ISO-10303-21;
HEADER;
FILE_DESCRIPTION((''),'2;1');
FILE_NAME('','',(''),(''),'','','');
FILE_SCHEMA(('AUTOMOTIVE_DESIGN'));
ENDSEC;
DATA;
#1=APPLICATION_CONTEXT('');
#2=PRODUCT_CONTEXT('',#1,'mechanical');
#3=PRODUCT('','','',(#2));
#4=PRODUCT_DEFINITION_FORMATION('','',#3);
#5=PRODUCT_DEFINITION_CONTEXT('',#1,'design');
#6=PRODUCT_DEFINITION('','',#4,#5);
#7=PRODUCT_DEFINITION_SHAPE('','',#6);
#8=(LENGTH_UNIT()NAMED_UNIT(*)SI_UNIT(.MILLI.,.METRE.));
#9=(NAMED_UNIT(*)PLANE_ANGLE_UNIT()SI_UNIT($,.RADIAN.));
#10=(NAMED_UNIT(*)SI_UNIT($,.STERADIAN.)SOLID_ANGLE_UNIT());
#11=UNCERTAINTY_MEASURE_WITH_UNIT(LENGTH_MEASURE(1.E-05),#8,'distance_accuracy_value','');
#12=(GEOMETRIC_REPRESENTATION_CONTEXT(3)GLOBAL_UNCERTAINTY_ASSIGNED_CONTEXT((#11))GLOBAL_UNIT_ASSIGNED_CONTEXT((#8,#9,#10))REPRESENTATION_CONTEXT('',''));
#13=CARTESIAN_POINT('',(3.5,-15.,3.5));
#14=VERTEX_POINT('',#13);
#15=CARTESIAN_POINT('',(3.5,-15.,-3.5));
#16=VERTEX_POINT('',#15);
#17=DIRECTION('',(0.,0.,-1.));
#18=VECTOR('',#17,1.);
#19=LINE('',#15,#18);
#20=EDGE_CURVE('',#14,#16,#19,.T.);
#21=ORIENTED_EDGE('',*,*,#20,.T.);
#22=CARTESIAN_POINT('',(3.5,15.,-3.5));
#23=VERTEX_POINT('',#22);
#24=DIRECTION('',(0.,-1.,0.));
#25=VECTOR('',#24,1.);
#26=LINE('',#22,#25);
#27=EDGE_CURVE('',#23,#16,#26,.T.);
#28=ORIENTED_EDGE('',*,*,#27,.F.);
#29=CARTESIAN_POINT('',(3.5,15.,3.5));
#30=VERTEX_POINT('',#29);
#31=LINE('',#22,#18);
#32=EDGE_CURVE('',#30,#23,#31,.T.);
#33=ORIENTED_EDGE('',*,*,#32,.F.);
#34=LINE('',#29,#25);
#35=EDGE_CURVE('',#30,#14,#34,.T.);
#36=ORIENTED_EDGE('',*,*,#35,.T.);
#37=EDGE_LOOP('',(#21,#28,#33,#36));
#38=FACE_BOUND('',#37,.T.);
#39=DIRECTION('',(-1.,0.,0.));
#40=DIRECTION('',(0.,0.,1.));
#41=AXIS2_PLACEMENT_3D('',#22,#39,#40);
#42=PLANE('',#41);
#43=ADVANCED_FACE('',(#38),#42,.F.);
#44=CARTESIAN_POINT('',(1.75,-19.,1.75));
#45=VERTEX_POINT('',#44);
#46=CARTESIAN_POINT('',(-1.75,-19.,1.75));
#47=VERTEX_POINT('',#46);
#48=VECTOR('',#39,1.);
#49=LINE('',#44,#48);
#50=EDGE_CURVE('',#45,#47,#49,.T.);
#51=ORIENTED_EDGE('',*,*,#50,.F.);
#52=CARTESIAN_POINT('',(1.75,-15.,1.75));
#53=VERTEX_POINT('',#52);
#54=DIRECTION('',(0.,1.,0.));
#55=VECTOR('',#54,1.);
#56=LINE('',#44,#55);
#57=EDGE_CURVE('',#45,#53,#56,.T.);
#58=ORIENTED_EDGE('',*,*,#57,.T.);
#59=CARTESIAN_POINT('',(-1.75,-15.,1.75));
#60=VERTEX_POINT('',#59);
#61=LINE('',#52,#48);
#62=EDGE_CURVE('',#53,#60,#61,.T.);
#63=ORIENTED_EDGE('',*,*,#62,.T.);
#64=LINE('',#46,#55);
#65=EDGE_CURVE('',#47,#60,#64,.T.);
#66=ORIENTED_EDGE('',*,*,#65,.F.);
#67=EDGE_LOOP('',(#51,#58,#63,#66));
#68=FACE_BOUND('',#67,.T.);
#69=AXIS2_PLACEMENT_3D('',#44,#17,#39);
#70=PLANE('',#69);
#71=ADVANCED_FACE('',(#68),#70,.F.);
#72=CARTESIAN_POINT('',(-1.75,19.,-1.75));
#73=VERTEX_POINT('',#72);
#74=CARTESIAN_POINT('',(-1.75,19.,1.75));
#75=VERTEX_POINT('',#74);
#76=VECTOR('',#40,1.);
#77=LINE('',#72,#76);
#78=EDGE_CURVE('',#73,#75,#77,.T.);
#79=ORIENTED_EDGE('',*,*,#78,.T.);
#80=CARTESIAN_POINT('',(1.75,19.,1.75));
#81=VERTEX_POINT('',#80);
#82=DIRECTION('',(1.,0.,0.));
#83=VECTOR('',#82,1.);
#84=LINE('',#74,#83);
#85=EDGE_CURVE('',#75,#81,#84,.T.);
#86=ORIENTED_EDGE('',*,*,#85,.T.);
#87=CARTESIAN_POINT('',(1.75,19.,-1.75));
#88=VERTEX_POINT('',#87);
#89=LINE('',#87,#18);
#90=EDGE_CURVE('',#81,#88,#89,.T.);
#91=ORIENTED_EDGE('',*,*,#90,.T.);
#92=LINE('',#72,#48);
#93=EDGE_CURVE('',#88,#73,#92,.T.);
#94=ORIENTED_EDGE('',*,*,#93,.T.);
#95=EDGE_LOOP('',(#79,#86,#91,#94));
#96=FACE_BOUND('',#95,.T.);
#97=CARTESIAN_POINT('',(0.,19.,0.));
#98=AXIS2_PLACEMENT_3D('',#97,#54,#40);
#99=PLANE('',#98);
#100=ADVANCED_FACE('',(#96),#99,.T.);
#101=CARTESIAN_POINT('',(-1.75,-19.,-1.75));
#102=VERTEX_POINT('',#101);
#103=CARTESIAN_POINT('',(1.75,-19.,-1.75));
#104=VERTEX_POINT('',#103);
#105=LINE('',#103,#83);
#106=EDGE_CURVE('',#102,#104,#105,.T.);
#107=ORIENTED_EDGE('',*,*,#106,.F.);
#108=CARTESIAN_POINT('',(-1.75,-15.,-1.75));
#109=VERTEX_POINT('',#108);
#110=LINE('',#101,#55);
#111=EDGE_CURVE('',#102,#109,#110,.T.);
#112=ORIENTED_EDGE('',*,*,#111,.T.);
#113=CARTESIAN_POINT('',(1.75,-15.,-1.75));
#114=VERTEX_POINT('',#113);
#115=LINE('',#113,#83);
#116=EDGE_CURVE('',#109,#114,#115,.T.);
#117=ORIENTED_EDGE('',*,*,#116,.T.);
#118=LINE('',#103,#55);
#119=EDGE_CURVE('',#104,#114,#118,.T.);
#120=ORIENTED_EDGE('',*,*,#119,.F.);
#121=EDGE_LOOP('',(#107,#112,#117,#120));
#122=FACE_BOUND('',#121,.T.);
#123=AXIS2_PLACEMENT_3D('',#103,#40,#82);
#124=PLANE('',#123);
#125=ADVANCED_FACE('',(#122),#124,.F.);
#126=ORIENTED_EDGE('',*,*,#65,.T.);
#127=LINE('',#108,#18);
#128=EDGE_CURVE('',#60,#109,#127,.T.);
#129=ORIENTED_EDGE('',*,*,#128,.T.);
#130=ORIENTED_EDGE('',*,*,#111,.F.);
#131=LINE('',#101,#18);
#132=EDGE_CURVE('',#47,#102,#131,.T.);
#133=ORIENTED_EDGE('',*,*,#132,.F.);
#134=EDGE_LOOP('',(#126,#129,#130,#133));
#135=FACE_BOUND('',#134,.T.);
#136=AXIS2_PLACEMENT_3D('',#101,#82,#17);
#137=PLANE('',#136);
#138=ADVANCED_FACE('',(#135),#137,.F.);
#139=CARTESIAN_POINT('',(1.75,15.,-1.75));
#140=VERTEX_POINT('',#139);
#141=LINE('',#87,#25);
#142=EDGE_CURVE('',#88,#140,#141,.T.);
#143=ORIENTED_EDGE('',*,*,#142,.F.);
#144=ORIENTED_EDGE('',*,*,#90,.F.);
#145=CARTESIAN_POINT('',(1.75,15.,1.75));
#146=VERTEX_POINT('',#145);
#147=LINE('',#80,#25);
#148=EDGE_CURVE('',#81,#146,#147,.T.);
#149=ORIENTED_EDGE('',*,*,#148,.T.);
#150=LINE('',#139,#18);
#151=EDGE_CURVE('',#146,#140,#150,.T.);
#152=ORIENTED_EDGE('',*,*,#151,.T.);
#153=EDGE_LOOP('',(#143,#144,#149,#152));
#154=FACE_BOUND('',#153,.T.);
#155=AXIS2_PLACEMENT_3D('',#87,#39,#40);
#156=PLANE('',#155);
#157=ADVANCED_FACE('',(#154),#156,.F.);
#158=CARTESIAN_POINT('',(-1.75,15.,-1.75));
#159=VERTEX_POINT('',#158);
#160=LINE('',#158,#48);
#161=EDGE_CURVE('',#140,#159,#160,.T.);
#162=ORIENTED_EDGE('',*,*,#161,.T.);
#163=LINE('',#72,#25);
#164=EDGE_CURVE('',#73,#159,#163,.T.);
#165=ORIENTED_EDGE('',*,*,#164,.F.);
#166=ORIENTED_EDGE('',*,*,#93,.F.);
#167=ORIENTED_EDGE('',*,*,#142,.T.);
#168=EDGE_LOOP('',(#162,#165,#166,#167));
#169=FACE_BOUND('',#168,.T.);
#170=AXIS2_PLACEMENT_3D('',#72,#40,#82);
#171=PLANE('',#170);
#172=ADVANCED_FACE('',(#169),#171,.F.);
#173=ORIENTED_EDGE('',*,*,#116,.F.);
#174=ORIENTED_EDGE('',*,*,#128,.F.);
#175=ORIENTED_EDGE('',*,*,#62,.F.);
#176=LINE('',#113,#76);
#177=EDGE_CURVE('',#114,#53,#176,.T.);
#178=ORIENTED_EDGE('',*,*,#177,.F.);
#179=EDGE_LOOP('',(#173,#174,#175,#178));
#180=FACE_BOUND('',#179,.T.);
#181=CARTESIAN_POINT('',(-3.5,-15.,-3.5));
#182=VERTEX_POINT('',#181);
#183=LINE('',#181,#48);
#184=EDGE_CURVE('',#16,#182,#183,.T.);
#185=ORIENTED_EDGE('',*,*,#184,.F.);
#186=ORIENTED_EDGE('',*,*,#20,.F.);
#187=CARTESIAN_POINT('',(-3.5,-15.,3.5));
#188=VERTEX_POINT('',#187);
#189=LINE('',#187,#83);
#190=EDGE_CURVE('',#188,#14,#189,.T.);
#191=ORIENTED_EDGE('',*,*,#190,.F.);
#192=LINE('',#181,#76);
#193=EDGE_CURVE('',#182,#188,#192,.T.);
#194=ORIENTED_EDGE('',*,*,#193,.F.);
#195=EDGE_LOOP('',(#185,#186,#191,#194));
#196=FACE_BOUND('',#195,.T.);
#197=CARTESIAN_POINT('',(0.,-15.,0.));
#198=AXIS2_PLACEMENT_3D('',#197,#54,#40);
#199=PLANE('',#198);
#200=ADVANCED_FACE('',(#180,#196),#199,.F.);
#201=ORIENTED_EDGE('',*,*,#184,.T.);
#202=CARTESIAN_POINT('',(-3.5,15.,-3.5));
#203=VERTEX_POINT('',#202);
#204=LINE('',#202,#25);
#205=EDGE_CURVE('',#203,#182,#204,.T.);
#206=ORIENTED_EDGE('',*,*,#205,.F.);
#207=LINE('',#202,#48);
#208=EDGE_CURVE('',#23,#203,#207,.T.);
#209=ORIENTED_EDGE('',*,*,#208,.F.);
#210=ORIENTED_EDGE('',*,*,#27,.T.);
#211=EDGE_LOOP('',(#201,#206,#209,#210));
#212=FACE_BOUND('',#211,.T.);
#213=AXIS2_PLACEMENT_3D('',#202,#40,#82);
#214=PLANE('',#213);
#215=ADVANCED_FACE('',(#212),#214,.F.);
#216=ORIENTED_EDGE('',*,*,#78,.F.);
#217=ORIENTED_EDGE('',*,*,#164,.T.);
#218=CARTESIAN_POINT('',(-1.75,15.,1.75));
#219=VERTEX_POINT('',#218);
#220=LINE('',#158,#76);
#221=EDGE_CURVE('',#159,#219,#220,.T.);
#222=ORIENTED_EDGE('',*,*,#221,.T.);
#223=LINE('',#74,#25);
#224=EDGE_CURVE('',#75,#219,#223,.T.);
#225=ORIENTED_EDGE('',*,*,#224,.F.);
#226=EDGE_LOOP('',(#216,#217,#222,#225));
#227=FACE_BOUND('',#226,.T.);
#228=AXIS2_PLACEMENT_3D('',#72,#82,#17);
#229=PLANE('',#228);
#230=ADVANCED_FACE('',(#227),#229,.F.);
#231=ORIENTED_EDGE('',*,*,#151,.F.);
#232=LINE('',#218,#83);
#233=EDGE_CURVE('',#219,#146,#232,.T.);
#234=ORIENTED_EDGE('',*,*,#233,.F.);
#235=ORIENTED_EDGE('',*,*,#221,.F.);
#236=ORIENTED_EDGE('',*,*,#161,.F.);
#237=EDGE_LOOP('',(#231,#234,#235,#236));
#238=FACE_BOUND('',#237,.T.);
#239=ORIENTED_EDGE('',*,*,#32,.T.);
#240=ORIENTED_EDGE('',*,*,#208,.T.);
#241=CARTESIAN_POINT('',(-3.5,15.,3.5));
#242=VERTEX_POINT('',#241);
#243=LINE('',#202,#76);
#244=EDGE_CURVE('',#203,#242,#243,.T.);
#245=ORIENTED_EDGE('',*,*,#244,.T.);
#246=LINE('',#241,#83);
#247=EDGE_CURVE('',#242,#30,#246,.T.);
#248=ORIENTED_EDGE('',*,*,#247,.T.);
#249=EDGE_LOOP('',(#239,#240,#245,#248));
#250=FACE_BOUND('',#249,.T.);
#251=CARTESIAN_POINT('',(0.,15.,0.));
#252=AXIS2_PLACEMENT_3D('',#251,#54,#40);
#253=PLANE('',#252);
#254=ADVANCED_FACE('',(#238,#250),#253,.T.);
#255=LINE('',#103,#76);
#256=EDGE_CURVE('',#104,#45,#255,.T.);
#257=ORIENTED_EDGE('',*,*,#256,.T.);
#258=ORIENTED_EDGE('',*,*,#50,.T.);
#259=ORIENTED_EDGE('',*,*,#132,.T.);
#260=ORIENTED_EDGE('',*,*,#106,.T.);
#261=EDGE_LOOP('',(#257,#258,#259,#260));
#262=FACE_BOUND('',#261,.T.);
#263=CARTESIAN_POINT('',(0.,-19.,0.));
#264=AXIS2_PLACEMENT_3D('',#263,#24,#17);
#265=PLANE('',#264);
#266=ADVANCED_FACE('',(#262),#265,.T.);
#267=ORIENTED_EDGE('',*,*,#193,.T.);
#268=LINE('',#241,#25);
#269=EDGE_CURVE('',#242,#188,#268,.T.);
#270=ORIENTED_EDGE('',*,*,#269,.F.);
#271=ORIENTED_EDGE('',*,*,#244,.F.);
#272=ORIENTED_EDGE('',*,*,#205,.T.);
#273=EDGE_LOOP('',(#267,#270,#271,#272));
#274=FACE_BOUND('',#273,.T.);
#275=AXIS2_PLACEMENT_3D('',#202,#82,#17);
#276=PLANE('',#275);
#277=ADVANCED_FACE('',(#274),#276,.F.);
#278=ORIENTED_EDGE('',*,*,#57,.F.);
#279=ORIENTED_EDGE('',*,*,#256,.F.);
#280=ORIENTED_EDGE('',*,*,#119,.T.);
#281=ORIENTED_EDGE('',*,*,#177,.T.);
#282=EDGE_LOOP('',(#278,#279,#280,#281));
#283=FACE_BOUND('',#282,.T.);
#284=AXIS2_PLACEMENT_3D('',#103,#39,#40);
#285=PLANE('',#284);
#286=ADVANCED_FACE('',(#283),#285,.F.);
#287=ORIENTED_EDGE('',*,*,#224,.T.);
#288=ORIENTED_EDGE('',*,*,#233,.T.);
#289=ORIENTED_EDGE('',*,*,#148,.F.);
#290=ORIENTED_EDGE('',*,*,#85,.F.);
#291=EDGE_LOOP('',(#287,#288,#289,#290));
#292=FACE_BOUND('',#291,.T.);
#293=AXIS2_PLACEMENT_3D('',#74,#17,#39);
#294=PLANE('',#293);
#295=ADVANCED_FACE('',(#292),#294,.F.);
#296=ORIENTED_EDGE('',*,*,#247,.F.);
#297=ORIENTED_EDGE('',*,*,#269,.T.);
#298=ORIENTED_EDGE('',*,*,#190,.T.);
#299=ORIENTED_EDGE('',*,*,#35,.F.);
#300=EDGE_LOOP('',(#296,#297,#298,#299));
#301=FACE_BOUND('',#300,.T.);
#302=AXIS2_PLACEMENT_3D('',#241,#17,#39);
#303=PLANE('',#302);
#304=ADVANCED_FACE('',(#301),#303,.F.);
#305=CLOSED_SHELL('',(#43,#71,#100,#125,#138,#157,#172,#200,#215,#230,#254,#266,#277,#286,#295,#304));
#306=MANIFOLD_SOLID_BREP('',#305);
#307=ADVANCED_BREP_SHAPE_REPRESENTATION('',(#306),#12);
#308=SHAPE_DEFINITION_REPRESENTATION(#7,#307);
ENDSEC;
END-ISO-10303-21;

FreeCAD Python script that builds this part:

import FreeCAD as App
import Part
import Sketcher

V = App.Vector
Q = App.Units.Quantity

doc = App.newDocument("Part")
body = doc.addObject("PartDesign::Body", "Body")

sketch1 = doc.addObject("Sketcher::SketchObject", "Sketch")
body.addObject(sketch1)
sketch1.AttachmentSupport = (doc.XZ_Plane, [""])
sketch1.MapMode = "FlatFace"
sketch1.addGeometry([
    Part.LineSegment(V(-4, -4, 0), V(-4, 4, 0)),
    Part.LineSegment(V(-4, 4, 0), V(4, 4, 0)),
    Part.LineSegment(V(4, 4, 0), V(4, -4, 0)),
    Part.LineSegment(V(4, -4, 0), V(-4, -4, 0)),
], False)
sketch1.addConstraint([
    Sketcher.Constraint("Coincident", 0, 2, 1, 1),
    Sketcher.Constraint("Coincident", 1, 2, 2, 1),
    Sketcher.Constraint("Coincident", 2, 2, 3, 1),
    Sketcher.Constraint("Coincident", 3, 2, 0, 1),
    Sketcher.Constraint("Vertical", 0),
    Sketcher.Constraint("Horizontal", 1),
    Sketcher.Constraint("Vertical", 2),
    Sketcher.Constraint("Horizontal", 3),
    Sketcher.Constraint("Symmetric", 0, 2, 2, 2, -1, 1),
    Sketcher.Constraint("Equal", 3, 0),
    Sketcher.Constraint("DistanceX", 1, 1, 1, 2, Q("7 mm")),
])
pad1 = doc.addObject("PartDesign::Pad", "Pad")
body.addObject(pad1)
pad1.Profile = sketch1
pad1.Length = 30
pad1.Midplane = True

sketch2 = doc.addObject("Sketcher::SketchObject", "Sketch001")
body.addObject(sketch2)
sketch2.AttachmentSupport = (doc.XZ_Plane, [""])
sketch2.MapMode = "FlatFace"
sketch2.AttachmentOffset = App.Placement(V(0, 0, -15), App.Rotation())
sketch2.addGeometry([
    Part.LineSegment(V(-1.8, -1.8, 0), V(-1.8, 1.8, 0)),
    Part.LineSegment(V(-1.8, 1.8, 0), V(1.8, 1.8, 0)),
    Part.LineSegment(V(1.8, 1.8, 0), V(1.8, -1.8, 0)),
    Part.LineSegment(V(1.8, -1.8, 0), V(-1.8, -1.8, 0)),
], False)
sketch2.addConstraint([
    Sketcher.Constraint("Coincident", 0, 2, 1, 1),
    Sketcher.Constraint("Coincident", 1, 2, 2, 1),
    Sketcher.Constraint("Coincident", 2, 2, 3, 1),
    Sketcher.Constraint("Coincident", 3, 2, 0, 1),
    Sketcher.Constraint("Vertical", 0),
    Sketcher.Constraint("Horizontal", 1),
    Sketcher.Constraint("Vertical", 2),
    Sketcher.Constraint("Horizontal", 3),
    Sketcher.Constraint("Symmetric", 0, 2, 2, 2, -1, 1),
    Sketcher.Constraint("Equal", 3, 0),
    Sketcher.Constraint("DistanceX", 1, 1, 1, 2, Q("3.5 mm")),
])
pad2 = doc.addObject("PartDesign::Pad", "Pad001")
body.addObject(pad2)
pad2.Profile = sketch2
pad2.Length = 4
pad2.Reversed = True

sketch3 = doc.addObject("Sketcher::SketchObject", "Sketch002")
body.addObject(sketch3)
sketch3.AttachmentSupport = (doc.XZ_Plane, [""])
sketch3.MapMode = "FlatFace"
sketch3.AttachmentOffset = App.Placement(V(0, 0, 15), App.Rotation())
sketch3.addGeometry([
    Part.LineSegment(V(-1.8, 1.8, 0), V(-1.8, -1.8, 0)),
    Part.LineSegment(V(-1.8, -1.8, 0), V(1.8, -1.8, 0)),
    Part.LineSegment(V(1.8, -1.8, 0), V(1.8, 1.8, 0)),
    Part.LineSegment(V(1.8, 1.8, 0), V(-1.8, 1.8, 0)),
], False)
sketch3.addConstraint([
    Sketcher.Constraint("Coincident", 0, 2, 1, 1),
    Sketcher.Constraint("Coincident", 1, 2, 2, 1),
    Sketcher.Constraint("Coincident", 2, 2, 3, 1),
    Sketcher.Constraint("Coincident", 3, 2, 0, 1),
    Sketcher.Constraint("Vertical", 0),
    Sketcher.Constraint("Horizontal", 1),
    Sketcher.Constraint("Vertical", 2),
    Sketcher.Constraint("Horizontal", 3),
    Sketcher.Constraint("Symmetric", 0, 2, 2, 2, -1, 1),
    Sketcher.Constraint("Equal", 3, 0),
    Sketcher.Constraint("DistanceX", 1, 1, 1, 2, Q("3.5 mm")),
])
pad3 = doc.addObject("PartDesign::Pad", "Pad002")
body.addObject(pad3)
pad3.Profile = sketch3
pad3.Length = 4

doc.recompute()
